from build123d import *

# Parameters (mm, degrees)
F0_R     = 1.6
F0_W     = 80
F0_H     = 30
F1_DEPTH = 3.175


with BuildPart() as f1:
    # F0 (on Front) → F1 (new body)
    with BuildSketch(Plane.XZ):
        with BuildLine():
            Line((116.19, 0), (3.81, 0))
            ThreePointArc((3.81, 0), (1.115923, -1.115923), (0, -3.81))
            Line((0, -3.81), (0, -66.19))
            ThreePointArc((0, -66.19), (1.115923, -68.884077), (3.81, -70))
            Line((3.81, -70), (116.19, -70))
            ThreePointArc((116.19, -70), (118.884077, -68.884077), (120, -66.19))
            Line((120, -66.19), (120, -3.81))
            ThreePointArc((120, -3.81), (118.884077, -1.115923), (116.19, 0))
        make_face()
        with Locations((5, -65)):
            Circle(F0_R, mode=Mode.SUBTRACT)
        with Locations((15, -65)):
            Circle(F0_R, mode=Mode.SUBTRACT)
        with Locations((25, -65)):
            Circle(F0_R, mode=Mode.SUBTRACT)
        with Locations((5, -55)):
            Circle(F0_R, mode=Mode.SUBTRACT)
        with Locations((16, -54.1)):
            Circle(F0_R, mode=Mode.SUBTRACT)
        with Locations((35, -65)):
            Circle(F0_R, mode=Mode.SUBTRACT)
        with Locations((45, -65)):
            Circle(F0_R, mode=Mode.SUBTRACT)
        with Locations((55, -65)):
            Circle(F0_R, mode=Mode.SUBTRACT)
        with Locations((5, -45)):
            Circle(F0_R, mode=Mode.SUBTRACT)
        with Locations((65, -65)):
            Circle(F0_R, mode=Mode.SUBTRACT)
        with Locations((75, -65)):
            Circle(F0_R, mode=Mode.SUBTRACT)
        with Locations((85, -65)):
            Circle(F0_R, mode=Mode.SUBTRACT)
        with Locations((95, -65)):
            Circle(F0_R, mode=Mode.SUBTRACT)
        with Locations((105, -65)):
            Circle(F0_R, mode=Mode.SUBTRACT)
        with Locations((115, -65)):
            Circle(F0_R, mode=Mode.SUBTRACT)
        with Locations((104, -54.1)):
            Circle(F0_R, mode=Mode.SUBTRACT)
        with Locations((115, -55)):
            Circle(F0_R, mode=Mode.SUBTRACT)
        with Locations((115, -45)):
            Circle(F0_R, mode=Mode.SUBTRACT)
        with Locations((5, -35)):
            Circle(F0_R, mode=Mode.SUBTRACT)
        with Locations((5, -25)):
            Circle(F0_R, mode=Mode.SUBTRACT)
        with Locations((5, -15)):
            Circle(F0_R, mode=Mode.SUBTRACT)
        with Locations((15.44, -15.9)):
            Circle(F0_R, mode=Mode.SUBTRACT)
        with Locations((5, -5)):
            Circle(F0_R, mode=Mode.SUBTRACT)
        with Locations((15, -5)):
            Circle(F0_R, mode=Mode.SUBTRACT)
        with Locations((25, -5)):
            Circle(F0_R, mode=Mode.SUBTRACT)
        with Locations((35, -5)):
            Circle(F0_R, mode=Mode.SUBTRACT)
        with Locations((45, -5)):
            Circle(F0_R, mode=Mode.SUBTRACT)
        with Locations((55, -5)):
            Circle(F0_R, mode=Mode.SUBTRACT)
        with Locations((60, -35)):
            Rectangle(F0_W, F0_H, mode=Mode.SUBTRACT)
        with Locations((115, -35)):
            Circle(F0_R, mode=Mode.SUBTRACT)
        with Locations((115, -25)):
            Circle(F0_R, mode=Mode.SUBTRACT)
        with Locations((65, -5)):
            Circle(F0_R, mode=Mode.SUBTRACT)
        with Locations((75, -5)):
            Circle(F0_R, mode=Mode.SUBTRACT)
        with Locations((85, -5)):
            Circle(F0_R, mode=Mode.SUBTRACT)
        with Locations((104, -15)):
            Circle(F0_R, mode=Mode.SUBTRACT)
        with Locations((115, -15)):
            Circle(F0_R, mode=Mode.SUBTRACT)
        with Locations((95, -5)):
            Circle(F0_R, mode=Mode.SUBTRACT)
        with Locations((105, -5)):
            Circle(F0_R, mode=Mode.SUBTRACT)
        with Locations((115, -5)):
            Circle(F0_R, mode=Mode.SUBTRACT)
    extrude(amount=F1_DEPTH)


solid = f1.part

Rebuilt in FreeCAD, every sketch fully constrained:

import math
import FreeCAD as App
import Part
import Sketcher


def add_polygon(sketch, points):
    """Adds a closed chain of lines whose ends are joined by coincident constraints."""
    first, n = sketch.GeometryCount, len(points)
    for a, b in zip(points, points[1:] + points[:1]):
        sketch.addGeometry(Part.LineSegment(App.Vector(*a, 0), App.Vector(*b, 0)), False)
    for i in range(n):
        sketch.addConstraint(Sketcher.Constraint("Coincident", first + i, 2, first + (i + 1) % n, 1))

doc = App.newDocument("Part")
body = doc.addObject("PartDesign::Body", "Body")

# Sketch on XZ plane
sketch1 = body.newObject("Sketcher::SketchObject", "Sketch")
sketch1.AttachmentSupport = (doc.getObject("XZ_Plane"), [""])
sketch1.MapMode = "FlatFace"
sketch1.addGeometry(Part.LineSegment(App.Vector(116.19, 0, 0), App.Vector(3.81, 0, 0)), False)  # 0
sketch1.addGeometry(Part.ArcOfCircle(Part.Circle(App.Vector(3.809999, -3.809999, 0), App.Vector(0, 0, 1), 3.809999), math.radians(89.999992), math.radians(180.000008)), False)  # 1
sketch1.addGeometry(Part.LineSegment(App.Vector(0, -3.81, 0), App.Vector(0, -66.19, 0)), False)  # 2
sketch1.addGeometry(Part.ArcOfCircle(Part.Circle(App.Vector(3.809999, -66.190001, 0), App.Vector(0, 0, 1), 3.809999), math.radians(179.999992), math.radians(270.000008)), False)  # 3
sketch1.addGeometry(Part.LineSegment(App.Vector(3.81, -70, 0), App.Vector(116.19, -70, 0)), False)  # 4
sketch1.addGeometry(Part.ArcOfCircle(Part.Circle(App.Vector(116.190001, -66.190001, 0), App.Vector(0, 0, 1), 3.809999), math.radians(-90.000008), math.radians(0.000008)), False)  # 5
sketch1.addGeometry(Part.LineSegment(App.Vector(120, -66.19, 0), App.Vector(120, -3.81, 0)), False)  # 6
sketch1.addGeometry(Part.ArcOfCircle(Part.Circle(App.Vector(116.190001, -3.809999, 0), App.Vector(0, 0, 1), 3.809999), math.radians(-0.000008), math.radians(90.000008)), False)  # 7
sketch1.addGeometry(Part.Circle(App.Vector(5, -65, 0), App.Vector(0, 0, 1), 1.6), False)  # 8
sketch1.addGeometry(Part.Circle(App.Vector(15, -65, 0), App.Vector(0, 0, 1), 1.6), False)  # 9
sketch1.addGeometry(Part.Circle(App.Vector(25, -65, 0), App.Vector(0, 0, 1), 1.6), False)  # 10
sketch1.addGeometry(Part.Circle(App.Vector(5, -55, 0), App.Vector(0, 0, 1), 1.6), False)  # 11
sketch1.addGeometry(Part.Circle(App.Vector(16, -54.1, 0), App.Vector(0, 0, 1), 1.6), False)  # 12
sketch1.addGeometry(Part.Circle(App.Vector(35, -65, 0), App.Vector(0, 0, 1), 1.6), False)  # 13
sketch1.addGeometry(Part.Circle(App.Vector(45, -65, 0), App.Vector(0, 0, 1), 1.6), False)  # 14
sketch1.addGeometry(Part.Circle(App.Vector(55, -65, 0), App.Vector(0, 0, 1), 1.6), False)  # 15
sketch1.addGeometry(Part.Circle(App.Vector(5, -45, 0), App.Vector(0, 0, 1), 1.6), False)  # 16
sketch1.addGeometry(Part.Circle(App.Vector(5, -35, 0), App.Vector(0, 0, 1), 1.6), False)  # 17
sketch1.addGeometry(Part.Circle(App.Vector(65, -65, 0), App.Vector(0, 0, 1), 1.6), False)  # 18
sketch1.addGeometry(Part.Circle(App.Vector(75, -65, 0), App.Vector(0, 0, 1), 1.6), False)  # 19
sketch1.addGeometry(Part.Circle(App.Vector(85, -65, 0), App.Vector(0, 0, 1), 1.6), False)  # 20
sketch1.addGeometry(Part.Circle(App.Vector(95, -65, 0), App.Vector(0, 0, 1), 1.6), False)  # 21
sketch1.addGeometry(Part.Circle(App.Vector(105, -65, 0), App.Vector(0, 0, 1), 1.6), False)  # 22
sketch1.addGeometry(Part.Circle(App.Vector(115, -65, 0), App.Vector(0, 0, 1), 1.6), False)  # 23
sketch1.addGeometry(Part.Circle(App.Vector(115, -55, 0), App.Vector(0, 0, 1), 1.6), False)  # 24
sketch1.addGeometry(Part.Circle(App.Vector(104, -54.1, 0), App.Vector(0, 0, 1), 1.6), False)  # 25
add_polygon(sketch1, [(100, -50), (20, -50), (20, -20), (100, -20)])  # lines 26-29
sketch1.addGeometry(Part.Circle(App.Vector(115, -45, 0), App.Vector(0, 0, 1), 1.6), False)  # 30
sketch1.addGeometry(Part.Circle(App.Vector(115, -35, 0), App.Vector(0, 0, 1), 1.6), False)  # 31
sketch1.addGeometry(Part.Circle(App.Vector(5, -25, 0), App.Vector(0, 0, 1), 1.6), False)  # 32
sketch1.addGeometry(Part.Circle(App.Vector(15.44, -15.9, 0), App.Vector(0, 0, 1), 1.6), False)  # 33
sketch1.addGeometry(Part.Circle(App.Vector(5, -15, 0), App.Vector(0, 0, 1), 1.6), False)  # 34
sketch1.addGeometry(Part.Circle(App.Vector(5, -5, 0), App.Vector(0, 0, 1), 1.6), False)  # 35
sketch1.addGeometry(Part.Circle(App.Vector(15, -5, 0), App.Vector(0, 0, 1), 1.6), False)  # 36
sketch1.addGeometry(Part.Circle(App.Vector(25, -5, 0), App.Vector(0, 0, 1), 1.6), False)  # 37
sketch1.addGeometry(Part.Circle(App.Vector(35, -5, 0), App.Vector(0, 0, 1), 1.6), False)  # 38
sketch1.addGeometry(Part.Circle(App.Vector(45, -5, 0), App.Vector(0, 0, 1), 1.6), False)  # 39
sketch1.addGeometry(Part.Circle(App.Vector(55, -5, 0), App.Vector(0, 0, 1), 1.6), False)  # 40
sketch1.addGeometry(Part.Circle(App.Vector(115, -25, 0), App.Vector(0, 0, 1), 1.6), False)  # 41
sketch1.addGeometry(Part.Circle(App.Vector(65, -5, 0), App.Vector(0, 0, 1), 1.6), False)  # 42
sketch1.addGeometry(Part.Circle(App.Vector(75, -5, 0), App.Vector(0, 0, 1), 1.6), False)  # 43
sketch1.addGeometry(Part.Circle(App.Vector(85, -5, 0), App.Vector(0, 0, 1), 1.6), False)  # 44
sketch1.addGeometry(Part.Circle(App.Vector(104, -15, 0), App.Vector(0, 0, 1), 1.6), False)  # 45
sketch1.addGeometry(Part.Circle(App.Vector(115, -15, 0), App.Vector(0, 0, 1), 1.6), False)  # 46
sketch1.addGeometry(Part.Circle(App.Vector(95, -5, 0), App.Vector(0, 0, 1), 1.6), False)  # 47
sketch1.addGeometry(Part.Circle(App.Vector(105, -5, 0), App.Vector(0, 0, 1), 1.6), False)  # 48
sketch1.addGeometry(Part.Circle(App.Vector(115, -5, 0), App.Vector(0, 0, 1), 1.6), False)  # 49
sketch1.addConstraint([
    Sketcher.Constraint("Tangent", 0, 2, 1, 1),
    Sketcher.Constraint("Tangent", 1, 2, 2, 1),
    Sketcher.Constraint("Tangent", 2, 2, 3, 1),
    Sketcher.Constraint("Tangent", 3, 2, 4, 1),
    Sketcher.Constraint("Tangent", 4, 2, 5, 1),
    Sketcher.Constraint("Tangent", 5, 2, 6, 1),
    Sketcher.Constraint("Tangent", 6, 2, 7, 1),
    Sketcher.Constraint("Tangent", 7, 2, 0, 1),
    Sketcher.Constraint("Horizontal", 0),
    Sketcher.Constraint("Vertical", 2),
    Sketcher.Constraint("Horizontal", 4),
    Sketcher.Constraint("Vertical", 6),
    Sketcher.Constraint("Horizontal", 26),
    Sketcher.Constraint("Vertical", 27),
    Sketcher.Constraint("Horizontal", 28),
    Sketcher.Constraint("Vertical", 29),
    Sketcher.Constraint("Equal", 1, 3),
    Sketcher.Constraint("Equal", 3, 5),
    Sketcher.Constraint("Equal", 5, 7),
    Sketcher.Constraint("Equal", 8, 9),
    Sketcher.Constraint("Equal", 9, 10),
    Sketcher.Constraint("Equal", 10, 11),
    Sketcher.Constraint("Equal", 11, 12),
    Sketcher.Constraint("Equal", 12, 13),
    Sketcher.Constraint("Equal", 13, 14),
    Sketcher.Constraint("Equal", 14, 15),
    Sketcher.Constraint("Equal", 15, 16),
    Sketcher.Constraint("Equal", 16, 17),
    Sketcher.Constraint("Equal", 17, 18),
    Sketcher.Constraint("Equal", 18, 19),
    Sketcher.Constraint("Equal", 19, 20),
    Sketcher.Constraint("Equal", 20, 21),
    Sketcher.Constraint("Equal", 21, 22),
    Sketcher.Constraint("Equal", 22, 23),
    Sketcher.Constraint("Equal", 23, 24),
    Sketcher.Constraint("Equal", 24, 25),
    Sketcher.Constraint("Equal", 25, 30),
    Sketcher.Constraint("Equal", 30, 31),
    Sketcher.Constraint("Equal", 31, 32),
    Sketcher.Constraint("Equal", 32, 33),
    Sketcher.Constraint("Equal", 33, 34),
    Sketcher.Constraint("Equal", 34, 35),
    Sketcher.Constraint("Equal", 35, 36),
    Sketcher.Constraint("Equal", 36, 37),
    Sketcher.Constraint("Equal", 37, 38),
    Sketcher.Constraint("Equal", 38, 39),
    Sketcher.Constraint("Equal", 39, 40),
    Sketcher.Constraint("Equal", 40, 41),
    Sketcher.Constraint("Equal", 41, 42),
    Sketcher.Constraint("Equal", 42, 43),
    Sketcher.Constraint("Equal", 43, 44),
    Sketcher.Constraint("Equal", 44, 45),
    Sketcher.Constraint("Equal", 45, 46),
    Sketcher.Constraint("Equal", 46, 47),
    Sketcher.Constraint("Equal", 47, 48),
    Sketcher.Constraint("Equal", 48, 49),
    Sketcher.Constraint("PointOnObject", 0, 2, -1),
    Sketcher.Constraint("PointOnObject", 1, 2, -2),
    Sketcher.Constraint("Horizontal", 8, 3, 9, 3),
    Sketcher.Constraint("Horizontal", 9, 3, 10, 3),
    Sketcher.Constraint("Horizontal", 10, 3, 13, 3),
    Sketcher.Constraint("Horizontal", 13, 3, 14, 3),
    Sketcher.Constraint("Horizontal", 14, 3, 15, 3),
    Sketcher.Constraint("Horizontal", 15, 3, 18, 3),
    Sketcher.Constraint("Horizontal", 18, 3, 19, 3),
    Sketcher.Constraint("Horizontal", 19, 3, 20, 3),
    Sketcher.Constraint("Horizontal", 20, 3, 21, 3),
    Sketcher.Constraint("Horizontal", 21, 3, 22, 3),
    Sketcher.Constraint("Horizontal", 22, 3, 23, 3),
    Sketcher.Constraint("Horizontal", 11, 3, 24, 3),
    Sketcher.Constraint("Horizontal", 12, 3, 25, 3),
    Sketcher.Constraint("Horizontal", 16, 3, 30, 3),
    Sketcher.Constraint("Horizontal", 17, 3, 31, 3),
    Sketcher.Constraint("Horizontal", 35, 3, 36, 3),
    Sketcher.Constraint("Horizontal", 36, 3, 37, 3),
    Sketcher.Constraint("Horizontal", 37, 3, 38, 3),
    Sketcher.Constraint("Horizontal", 38, 3, 39, 3),
    Sketcher.Constraint("Horizontal", 39, 3, 40, 3),
    Sketcher.Constraint("Horizontal", 32, 3, 41, 3),
    Sketcher.Constraint("Horizontal", 40, 3, 42, 3),
    Sketcher.Constraint("Horizontal", 42, 3, 43, 3),
    Sketcher.Constraint("Horizontal", 43, 3, 44, 3),
    Sketcher.Constraint("Horizontal", 34, 3, 45, 3),
    Sketcher.Constraint("Horizontal", 45, 3, 46, 3),
    Sketcher.Constraint("Horizontal", 44, 3, 47, 3),
    Sketcher.Constraint("Horizontal", 47, 3, 48, 3),
    Sketcher.Constraint("Horizontal", 48, 3, 49, 3),
    Sketcher.Constraint("Vertical", 8, 3, 11, 3),
    Sketcher.Constraint("Vertical", 11, 3, 16, 3),
    Sketcher.Constraint("Vertical", 16, 3, 17, 3),
    Sketcher.Constraint("Vertical", 23, 3, 24, 3),
    Sketcher.Constraint("Vertical", 24, 3, 30, 3),
    Sketcher.Constraint("Vertical", 30, 3, 31, 3),
    Sketcher.Constraint("Vertical", 17, 3, 32, 3),
    Sketcher.Constraint("Vertical", 32, 3, 34, 3),
    Sketcher.Constraint("Vertical", 34, 3, 35, 3),
    Sketcher.Constraint("Vertical", 9, 3, 36, 3),
    Sketcher.Constraint("Vertical", 10, 3, 37, 3),
    Sketcher.Constraint("Vertical", 13, 3, 38, 3),
    Sketcher.Constraint("Vertical", 14, 3, 39, 3),
    Sketcher.Constraint("Vertical", 15, 3, 40, 3),
    Sketcher.Constraint("Vertical", 31, 3, 41, 3),
    Sketcher.Constraint("Vertical", 18, 3, 42, 3),
    Sketcher.Constraint("Vertical", 19, 3, 43, 3),
    Sketcher.Constraint("Vertical", 20, 3, 44, 3),
    Sketcher.Constraint("Vertical", 25, 3, 45, 3),
    Sketcher.Constraint("Vertical", 41, 3, 46, 3),
    Sketcher.Constraint("Vertical", 21, 3, 47, 3),
    Sketcher.Constraint("Vertical", 22, 3, 48, 3),
    Sketcher.Constraint("Vertical", 46, 3, 49, 3),
    Sketcher.Constraint("Diameter", 8, 3.2),
    Sketcher.Constraint("DistanceX", 26, 2, 26, 1, 80.0),
    Sketcher.Constraint("DistanceY", 27, 1, 27, 2, 30.0),
    Sketcher.Constraint("Radius", 1, 3.809999),
    Sketcher.Constraint("DistanceX", -1, 1, 8, 3, 5.0),
    Sketcher.Constraint("DistanceY", 8, 3, -1, 1, 65.0),
    Sketcher.Constraint("DistanceX", -1, 1, 9, 3, 15.0),
    Sketcher.Constraint("DistanceX", -1, 1, 10, 3, 25.0),
    Sketcher.Constraint("DistanceY", 11, 3, -1, 1, 55.0),
    Sketcher.Constraint("DistanceX", -1, 1, 12, 3, 16.0),
    Sketcher.Constraint("DistanceX", -1, 1, 13, 3, 35.0),
    Sketcher.Constraint("DistanceX", -1, 1, 14, 3, 45.0),
    Sketcher.Constraint("DistanceX", -1, 1, 15, 3, 55.0),
    Sketcher.Constraint("DistanceY", 16, 3, -1, 1, 45.0),
    Sketcher.Constraint("DistanceY", 17, 3, -1, 1, 35.0),
    Sketcher.Constraint("DistanceX", -1, 1, 18, 3, 65.0),
    Sketcher.Constraint("DistanceX", -1, 1, 19, 3, 75.0),
    Sketcher.Constraint("DistanceX", -1, 1, 20, 3, 85.0),
    Sketcher.Constraint("DistanceX", -1, 1, 21, 3, 95.0),
    Sketcher.Constraint("DistanceX", -1, 1, 22, 3, 105.0),
    Sketcher.Constraint("DistanceX", -1, 1, 23, 3, 115.0),
    Sketcher.Constraint("DistanceX", -1, 1, 25, 3, 104.0),
    Sketcher.Constraint("DistanceY", 32, 3, -1, 1, 25.0),
    Sketcher.Constraint("DistanceY", 34, 3, -1, 1, 15.0),
    Sketcher.Constraint("DistanceY", 35, 3, -1, 1, 5.0),
    Sketcher.Constraint("DistanceY", 3, 2, -1, 1, 70.0),
    Sketcher.Constraint("DistanceX", -1, 1, 5, 2, 120.0),
    Sketcher.Constraint("DistanceX", -1, 1, 26, 2, 20.0),
    Sketcher.Constraint("DistanceY", 26, 2, -1, 1, 50.0),
    Sketcher.Constraint("DistanceY", 12, 3, -1, 1, 54.1),
    Sketcher.Constraint("DistanceY", 33, 3, -1, 1, 15.9),
    Sketcher.Constraint("DistanceX", -1, 1, 33, 3, 15.44),
])
pad1 = body.newObject("PartDesign::Pad", "Pad")
pad1.Profile = sketch1
pad1.Length = 3.175

doc.recompute()
